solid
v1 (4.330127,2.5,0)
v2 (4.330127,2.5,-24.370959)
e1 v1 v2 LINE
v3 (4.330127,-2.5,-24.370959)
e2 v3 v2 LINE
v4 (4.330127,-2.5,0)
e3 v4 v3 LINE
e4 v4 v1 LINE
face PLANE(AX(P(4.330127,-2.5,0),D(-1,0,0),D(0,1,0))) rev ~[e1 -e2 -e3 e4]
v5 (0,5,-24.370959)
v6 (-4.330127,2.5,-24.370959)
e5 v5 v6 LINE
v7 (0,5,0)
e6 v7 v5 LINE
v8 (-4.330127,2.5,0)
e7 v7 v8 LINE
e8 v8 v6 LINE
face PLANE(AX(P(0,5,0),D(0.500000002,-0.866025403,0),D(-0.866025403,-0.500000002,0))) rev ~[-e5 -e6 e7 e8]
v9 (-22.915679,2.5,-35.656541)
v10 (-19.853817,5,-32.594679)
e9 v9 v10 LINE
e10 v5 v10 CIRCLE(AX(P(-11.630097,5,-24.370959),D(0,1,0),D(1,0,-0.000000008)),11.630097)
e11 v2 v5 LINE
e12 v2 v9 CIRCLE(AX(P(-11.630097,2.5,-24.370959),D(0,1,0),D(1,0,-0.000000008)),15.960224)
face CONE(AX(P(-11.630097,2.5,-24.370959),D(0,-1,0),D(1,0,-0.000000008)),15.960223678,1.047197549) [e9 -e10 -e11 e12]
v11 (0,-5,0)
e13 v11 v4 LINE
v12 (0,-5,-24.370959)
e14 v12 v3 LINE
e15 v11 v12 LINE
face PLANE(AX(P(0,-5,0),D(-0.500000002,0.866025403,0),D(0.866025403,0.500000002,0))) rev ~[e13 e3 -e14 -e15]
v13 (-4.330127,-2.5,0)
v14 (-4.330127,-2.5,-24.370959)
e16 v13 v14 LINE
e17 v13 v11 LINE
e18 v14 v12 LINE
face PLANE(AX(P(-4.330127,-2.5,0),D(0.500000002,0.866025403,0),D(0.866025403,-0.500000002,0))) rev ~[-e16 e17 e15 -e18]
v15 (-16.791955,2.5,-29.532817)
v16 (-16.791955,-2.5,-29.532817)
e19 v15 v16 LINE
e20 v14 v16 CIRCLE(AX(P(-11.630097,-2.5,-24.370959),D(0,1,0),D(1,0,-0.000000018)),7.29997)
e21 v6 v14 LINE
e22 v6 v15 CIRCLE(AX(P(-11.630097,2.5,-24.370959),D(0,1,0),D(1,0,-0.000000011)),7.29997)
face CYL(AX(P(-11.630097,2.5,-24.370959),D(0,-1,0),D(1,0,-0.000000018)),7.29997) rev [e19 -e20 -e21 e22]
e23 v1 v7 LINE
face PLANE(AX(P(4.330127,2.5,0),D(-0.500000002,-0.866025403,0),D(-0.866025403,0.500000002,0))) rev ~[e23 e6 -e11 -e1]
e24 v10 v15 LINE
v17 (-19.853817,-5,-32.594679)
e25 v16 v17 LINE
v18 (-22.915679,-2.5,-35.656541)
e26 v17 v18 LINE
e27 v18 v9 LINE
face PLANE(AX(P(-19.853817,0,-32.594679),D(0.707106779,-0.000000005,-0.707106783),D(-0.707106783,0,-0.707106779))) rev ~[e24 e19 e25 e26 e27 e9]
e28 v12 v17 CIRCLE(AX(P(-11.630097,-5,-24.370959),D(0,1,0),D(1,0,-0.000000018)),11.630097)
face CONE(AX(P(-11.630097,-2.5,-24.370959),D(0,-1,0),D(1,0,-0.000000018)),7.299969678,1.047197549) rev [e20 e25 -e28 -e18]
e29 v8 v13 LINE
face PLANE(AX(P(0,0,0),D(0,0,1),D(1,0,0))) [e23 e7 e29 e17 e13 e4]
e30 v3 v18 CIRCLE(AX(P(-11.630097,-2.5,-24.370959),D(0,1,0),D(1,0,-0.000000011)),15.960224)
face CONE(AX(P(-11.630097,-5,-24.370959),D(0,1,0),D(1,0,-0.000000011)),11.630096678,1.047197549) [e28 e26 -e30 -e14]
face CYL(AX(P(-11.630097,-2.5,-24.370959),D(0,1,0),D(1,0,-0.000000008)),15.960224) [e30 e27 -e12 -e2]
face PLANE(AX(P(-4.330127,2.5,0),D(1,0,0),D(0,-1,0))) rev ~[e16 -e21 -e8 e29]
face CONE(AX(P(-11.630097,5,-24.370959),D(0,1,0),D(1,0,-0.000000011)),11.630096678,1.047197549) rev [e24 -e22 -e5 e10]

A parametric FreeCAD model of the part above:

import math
import FreeCAD as App
import Part
import Sketcher
from FreeCAD import Vector
Q = App.Units.Quantity


def add_polygon(sketch, points):
    """Adds a closed chain of lines whose ends are joined by coincident constraints."""
    first, n = sketch.GeometryCount, len(points)
    for a, b in zip(points, points[1:] + points[:1]):
        sketch.addGeometry(Part.LineSegment(App.Vector(*a, 0), App.Vector(*b, 0)), False)
    for i in range(n):
        sketch.addConstraint(Sketcher.Constraint("Coincident", first + i, 2, first + (i + 1) % n, 1))

doc = App.newDocument("Part")
body = doc.addObject("PartDesign::Body", "Body")

# Sketch on XY plane
sketch1 = body.newObject("Sketcher::SketchObject", "Sketch")
sketch1.AttachmentSupport = (doc.getObject("XY_Plane"), [""])
sketch1.MapMode = "FlatFace"
add_polygon(sketch1, [(-4.3, -2.5), (0, -5), (4.3, -2.5), (4.3, 2.5), (0, 5), (-4.3, 2.5)])  # lines 0-5
sketch1.addConstraint(Sketcher.Constraint("Vertical", 2))
sketch1.addConstraint(Sketcher.Constraint("Vertical", 5))
sketch1.addConstraint(Sketcher.Constraint("Symmetric", 0, 2, 3, 2, -1, 1))
sketch1.addConstraint(Sketcher.Constraint("Symmetric", 1, 2, 4, 2, -1, 1))
sketch1.addConstraint(Sketcher.Constraint("PointOnObject", 0, 2, -2))
sketch1.addConstraint(Sketcher.Constraint("Parallel", 0, 3))
sketch1.addConstraint(Sketcher.Constraint("Horizontal", 2, 2, 4, 2))
sketch1.addConstraint(Sketcher.Constraint("DistanceY", 2, 1, 2, 2, Q("5 mm")))
sketch1.addConstraint(Sketcher.Constraint("Angle", 0, Q("-30 deg")))
sketch1.addConstraint(Sketcher.Constraint("Distance", 0, Q("5 mm")))

# Sketch on XZ plane
sketch2 = body.newObject("Sketcher::SketchObject", "Sketch001")
sketch2.AttachmentSupport = (doc.getObject("XZ_Plane"), [""])
sketch2.MapMode = "FlatFace"
sketch2.addGeometry(Part.LineSegment(Vector(0, 0, 0), Vector(0, -24, 0)), False)
sketch2.addGeometry(Part.ArcOfCircle(Part.Circle(Vector(-12, -24, 0), Vector(0, 0, 1), 12), math.radians(-135), math.radians(0)), False)
sketch2.addConstraint(Sketcher.Constraint("Tangent", 0, 2, 1, 2))
sketch2.addConstraint(Sketcher.Constraint("Vertical", 0))
sketch2.addConstraint(Sketcher.Constraint("Coincident", 0, 1, -1, 1))
sketch2.addConstraint(Sketcher.Constraint("Radius", 1, Q("11.630097 mm")))
sketch2.addConstraint(Sketcher.Constraint("DistanceY", 0, 2, 0, 1, Q("24.370959 mm")))
sketch2.addConstraint(Sketcher.Constraint("DistanceY", 1, 1, -1, 1, Q("32.594679 mm")))
doc.recompute()

additivepipe = body.newObject("PartDesign::AdditivePipe", "AdditivePipe")
additivepipe.Profile = sketch1
additivepipe.Spine = (sketch2, ["Edge1", "Edge2"])

doc.recompute()
